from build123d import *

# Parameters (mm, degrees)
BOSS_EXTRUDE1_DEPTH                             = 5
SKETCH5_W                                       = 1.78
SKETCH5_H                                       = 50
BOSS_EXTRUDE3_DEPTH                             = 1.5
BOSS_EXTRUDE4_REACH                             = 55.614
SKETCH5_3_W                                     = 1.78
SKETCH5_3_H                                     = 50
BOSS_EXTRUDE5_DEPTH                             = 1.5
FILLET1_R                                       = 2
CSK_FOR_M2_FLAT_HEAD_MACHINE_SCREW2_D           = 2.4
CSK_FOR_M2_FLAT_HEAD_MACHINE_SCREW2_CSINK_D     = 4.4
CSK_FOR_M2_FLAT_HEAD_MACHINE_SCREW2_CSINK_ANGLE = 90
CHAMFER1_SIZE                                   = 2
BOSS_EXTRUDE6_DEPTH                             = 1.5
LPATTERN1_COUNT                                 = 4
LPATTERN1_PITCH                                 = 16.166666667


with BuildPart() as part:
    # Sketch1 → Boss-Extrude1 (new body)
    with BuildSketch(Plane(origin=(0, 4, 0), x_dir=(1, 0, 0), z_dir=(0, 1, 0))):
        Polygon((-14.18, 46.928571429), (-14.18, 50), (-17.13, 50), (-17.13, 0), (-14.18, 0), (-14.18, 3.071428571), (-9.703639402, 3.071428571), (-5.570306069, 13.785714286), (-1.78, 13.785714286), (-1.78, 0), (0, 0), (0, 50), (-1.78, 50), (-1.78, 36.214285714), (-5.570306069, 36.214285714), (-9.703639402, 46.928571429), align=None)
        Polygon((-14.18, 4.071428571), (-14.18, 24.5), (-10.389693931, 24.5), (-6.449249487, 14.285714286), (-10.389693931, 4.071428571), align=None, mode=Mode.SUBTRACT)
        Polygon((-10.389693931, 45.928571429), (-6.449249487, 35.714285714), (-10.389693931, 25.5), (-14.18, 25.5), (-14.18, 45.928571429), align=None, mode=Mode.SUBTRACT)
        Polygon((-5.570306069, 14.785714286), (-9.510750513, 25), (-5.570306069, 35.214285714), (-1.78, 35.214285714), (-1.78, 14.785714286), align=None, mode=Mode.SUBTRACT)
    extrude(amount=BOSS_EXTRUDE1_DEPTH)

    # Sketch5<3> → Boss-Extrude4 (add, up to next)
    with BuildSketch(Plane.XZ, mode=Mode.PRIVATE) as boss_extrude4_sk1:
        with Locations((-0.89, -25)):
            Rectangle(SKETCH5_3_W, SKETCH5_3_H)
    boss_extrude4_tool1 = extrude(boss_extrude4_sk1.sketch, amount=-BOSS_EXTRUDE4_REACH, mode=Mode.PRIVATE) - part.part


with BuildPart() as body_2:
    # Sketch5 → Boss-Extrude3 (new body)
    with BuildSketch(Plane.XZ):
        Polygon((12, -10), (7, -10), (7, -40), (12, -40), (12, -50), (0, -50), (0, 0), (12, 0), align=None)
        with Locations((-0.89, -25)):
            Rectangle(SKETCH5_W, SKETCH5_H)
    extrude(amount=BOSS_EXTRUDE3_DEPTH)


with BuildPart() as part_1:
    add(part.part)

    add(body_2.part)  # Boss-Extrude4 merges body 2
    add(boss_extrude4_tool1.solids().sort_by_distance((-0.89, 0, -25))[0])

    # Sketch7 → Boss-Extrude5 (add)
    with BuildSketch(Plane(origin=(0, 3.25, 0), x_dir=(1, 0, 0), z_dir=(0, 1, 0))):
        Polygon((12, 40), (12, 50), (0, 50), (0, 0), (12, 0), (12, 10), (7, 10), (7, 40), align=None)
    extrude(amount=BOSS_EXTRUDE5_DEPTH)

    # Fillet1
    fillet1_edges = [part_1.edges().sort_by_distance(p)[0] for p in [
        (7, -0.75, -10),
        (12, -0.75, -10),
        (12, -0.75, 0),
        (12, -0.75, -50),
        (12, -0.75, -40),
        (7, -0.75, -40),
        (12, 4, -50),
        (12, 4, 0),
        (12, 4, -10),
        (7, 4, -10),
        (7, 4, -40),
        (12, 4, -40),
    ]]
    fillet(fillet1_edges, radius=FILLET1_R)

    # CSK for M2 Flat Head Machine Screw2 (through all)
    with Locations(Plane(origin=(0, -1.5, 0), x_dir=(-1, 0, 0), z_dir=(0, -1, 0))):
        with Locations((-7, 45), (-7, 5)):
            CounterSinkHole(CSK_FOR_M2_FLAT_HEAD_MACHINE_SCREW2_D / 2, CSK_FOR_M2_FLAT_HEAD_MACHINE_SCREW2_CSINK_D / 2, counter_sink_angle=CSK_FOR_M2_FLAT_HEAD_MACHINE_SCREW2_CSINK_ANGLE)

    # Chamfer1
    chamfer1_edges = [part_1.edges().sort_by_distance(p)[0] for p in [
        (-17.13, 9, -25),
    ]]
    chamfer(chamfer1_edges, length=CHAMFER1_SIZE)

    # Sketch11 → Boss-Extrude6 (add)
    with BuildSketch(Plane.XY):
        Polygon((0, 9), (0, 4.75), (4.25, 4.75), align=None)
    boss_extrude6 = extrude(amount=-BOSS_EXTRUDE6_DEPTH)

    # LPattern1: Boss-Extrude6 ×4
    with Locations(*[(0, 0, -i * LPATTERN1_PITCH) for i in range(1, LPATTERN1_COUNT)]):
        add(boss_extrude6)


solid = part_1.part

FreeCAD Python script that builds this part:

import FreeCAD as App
import Part
import Sketcher
from FreeCAD import Vector
Q = App.Units.Quantity


def edges_at(feature, points):
    """Names of the edges that pass closest to the given points."""
    edges = feature.Shape.Edges
    near = lambda p: min(range(len(edges)), key=lambda i: edges[i].distToShape(Part.Vertex(*p))[0])
    return sorted({f"Edge{near(p) + 1}" for p in points})


def add_polygon(sketch, points):
    """Adds a closed chain of lines whose ends are joined by coincident constraints."""
    first, n = sketch.GeometryCount, len(points)
    for a, b in zip(points, points[1:] + points[:1]):
        sketch.addGeometry(Part.LineSegment(App.Vector(*a, 0), App.Vector(*b, 0)), False)
    for i in range(n):
        sketch.addConstraint(Sketcher.Constraint("Coincident", first + i, 2, first + (i + 1) % n, 1))

doc = App.newDocument("Part")
body = doc.addObject("PartDesign::Body", "Body")

# Sketch on XZ plane
sketch1 = doc.addObject("Sketcher::SketchObject", "Sketch")
body.addObject(sketch1)
sketch1.AttachmentSupport = (doc.XZ_Plane, [""])
sketch1.MapMode = "FlatFace"
sketch1.AttachmentOffset = App.Placement(Vector(0, 0, -4), App.Rotation())
add_polygon(sketch1, [(-14.2, -46.9), (-14.2, -50), (-17.1, -50), (-17.1, 0), (-14.2, 0), (-14.2, -3.1), (-9.7, -3.1), (-5.6, -13.8), (-1.8, -13.8), (-1.8, 0), (0, 0), (0, -50), (-1.8, -50), (-1.8, -36.2), (-5.6, -36.2), (-9.7, -46.9)])  # lines 0-15
add_polygon(sketch1, [(-10.4, -4.1), (-14.2, -4.1), (-14.2, -24.5), (-10.4, -24.5), (-6.4, -14.3)])  # lines 16-20
add_polygon(sketch1, [(-14.2, -45.9), (-10.4, -45.9), (-6.4, -35.7), (-10.4, -25.5), (-14.2, -25.5)])  # lines 21-25
add_polygon(sketch1, [(-1.8, -14.8), (-5.6, -14.8), (-9.5, -25), (-5.6, -35.2), (-1.8, -35.2)])  # lines 26-30
sketch1.addConstraint(Sketcher.Constraint("Vertical", 0))
sketch1.addConstraint(Sketcher.Constraint("Horizontal", 1))
sketch1.addConstraint(Sketcher.Constraint("Vertical", 2))
sketch1.addConstraint(Sketcher.Constraint("Horizontal", 3))
sketch1.addConstraint(Sketcher.Constraint("Vertical", 4))
sketch1.addConstraint(Sketcher.Constraint("Horizontal", 5))
sketch1.addConstraint(Sketcher.Constraint("Horizontal", 7))
sketch1.addConstraint(Sketcher.Constraint("Vertical", 8))
sketch1.addConstraint(Sketcher.Constraint("Horizontal", 9))
sketch1.addConstraint(Sketcher.Constraint("Vertical", 10))
sketch1.addConstraint(Sketcher.Constraint("Horizontal", 11))
sketch1.addConstraint(Sketcher.Constraint("Vertical", 12))
sketch1.addConstraint(Sketcher.Constraint("Horizontal", 13))
sketch1.addConstraint(Sketcher.Constraint("Horizontal", 15))
sketch1.addConstraint(Sketcher.Constraint("Horizontal", 16))
sketch1.addConstraint(Sketcher.Constraint("Vertical", 17))
sketch1.addConstraint(Sketcher.Constraint("Horizontal", 18))
sketch1.addConstraint(Sketcher.Constraint("Horizontal", 21))
sketch1.addConstraint(Sketcher.Constraint("Horizontal", 24))
sketch1.addConstraint(Sketcher.Constraint("Vertical", 25))
sketch1.addConstraint(Sketcher.Constraint("Horizontal", 26))
sketch1.addConstraint(Sketcher.Constraint("Horizontal", 29))
sketch1.addConstraint(Sketcher.Constraint("Vertical", 30))
sketch1.addConstraint(Sketcher.Constraint("Coincident", 9, 2, -1, 1))
sketch1.addConstraint(Sketcher.Constraint("PointOnObject", 2, 2, -1))
sketch1.addConstraint(Sketcher.Constraint("Parallel", 14, 19))
sketch1.addConstraint(Sketcher.Constraint("Parallel", 6, 20))
sketch1.addConstraint(Sketcher.Constraint("Parallel", 19, 22))
sketch1.addConstraint(Sketcher.Constraint("Parallel", 20, 23))
sketch1.addConstraint(Sketcher.Constraint("Parallel", 22, 27))
sketch1.addConstraint(Sketcher.Constraint("Parallel", 23, 28))
sketch1.addConstraint(Sketcher.Constraint("Horizontal", 1, 2, 10, 2))
sketch1.addConstraint(Sketcher.Constraint("Vertical", 0, 2, 3, 2))
sketch1.addConstraint(Sketcher.Constraint("Vertical", 8, 2, 11, 2))
sketch1.addConstraint(Sketcher.Constraint("Vertical", 6, 2, 13, 2))
sketch1.addConstraint(Sketcher.Constraint("Vertical", 5, 2, 14, 2))
sketch1.addConstraint(Sketcher.Constraint("Vertical", 15, 2, 16, 2))
sketch1.addConstraint(Sketcher.Constraint("Vertical", 18, 2, 20, 2))
sketch1.addConstraint(Sketcher.Constraint("Vertical", 20, 2, 21, 2))
sketch1.addConstraint(Sketcher.Constraint("Vertical", 19, 2, 22, 2))
sketch1.addConstraint(Sketcher.Constraint("Vertical", 21, 2, 23, 2))
sketch1.addConstraint(Sketcher.Constraint("Vertical", 17, 2, 24, 2))
sketch1.addConstraint(Sketcher.Constraint("Vertical", 13, 2, 26, 2))
sketch1.addConstraint(Sketcher.Constraint("Vertical", 26, 2, 28, 2))
sketch1.addConstraint(Sketcher.Constraint("Vertical", 12, 2, 29, 2))
sketch1.addConstraint(Sketcher.Constraint("Equal", 13, 16))
sketch1.addConstraint(Sketcher.Constraint("Equal", 0, 4))
sketch1.addConstraint(Sketcher.Constraint("Equal", 8, 12))
sketch1.addConstraint(Sketcher.Constraint("Equal", 25, 30))
sketch1.addConstraint(Sketcher.Constraint("DistanceY", 2, 1, 2, 2, Q("50 mm")))
sketch1.addConstraint(Sketcher.Constraint("DistanceY", 27, 2, -1, 1, Q("25 mm")))
sketch1.addConstraint(Sketcher.Constraint("DistanceY", 16, 2, 4, 2, Q("1 mm")))
sketch1.addConstraint(Sketcher.Constraint("DistanceY", 14, 2, 21, 2, Q("1 mm")))
sketch1.addConstraint(Sketcher.Constraint("DistanceY", 23, 2, 18, 2, Q("1 mm")))
sketch1.addConstraint(Sketcher.Constraint("DistanceY", 26, 2, 6, 2, Q("1 mm")))
sketch1.addConstraint(Sketcher.Constraint("DistanceX", 1, 2, 1, 1, Q("2.95 mm")))
sketch1.addConstraint(Sketcher.Constraint("DistanceX", 9, 1, 9, 2, Q("1.78 mm")))
sketch1.addConstraint(Sketcher.Constraint("DistanceX", 4, 2, 7, 2, Q("12.4 mm")))
sketch1.addConstraint(Sketcher.Constraint("Distance", 19, Q("10.948001 mm")))
sketch1.addConstraint(Sketcher.Constraint("DistanceX", 5, 1, 5, 2, Q("4.476361 mm")))
sketch1.addConstraint(Sketcher.Constraint("DistanceY", 0, 2, 0, 1, Q("3.071429 mm")))
pad1 = doc.addObject("PartDesign::Pad", "Pad")
body.addObject(pad1)
pad1.Profile = sketch1
pad1.Length = 5
pad1.Reversed = True
body2 = doc.addObject("PartDesign::Body", "Body001")

# Sketch on XZ plane
sketch2 = doc.addObject("Sketcher::SketchObject", "Sketch001")
body2.addObject(sketch2)
sketch2.AttachmentSupport = (doc.getObject("XZ_Plane001"), [""])
sketch2.MapMode = "FlatFace"
add_polygon(sketch2, [(7, -10), (12, -10), (12, 0), (-2, 0), (-2, -50), (12, -50), (12, -40), (7, -40)])  # lines 0-7
sketch2.addConstraint(Sketcher.Constraint("Horizontal", 0))
sketch2.addConstraint(Sketcher.Constraint("Vertical", 1))
sketch2.addConstraint(Sketcher.Constraint("Horizontal", 2))
sketch2.addConstraint(Sketcher.Constraint("Vertical", 3))
sketch2.addConstraint(Sketcher.Constraint("Horizontal", 4))
sketch2.addConstraint(Sketcher.Constraint("Vertical", 5))
sketch2.addConstraint(Sketcher.Constraint("Horizontal", 6))
sketch2.addConstraint(Sketcher.Constraint("Vertical", 7))
sketch2.addConstraint(Sketcher.Constraint("PointOnObject", 1, 2, -1))
sketch2.addConstraint(Sketcher.Constraint("Vertical", 1, 2, 4, 2))
sketch2.addConstraint(Sketcher.Constraint("Equal", 1, 5))
sketch2.addConstraint(Sketcher.Constraint("DistanceX", 0, 1, 0, 2, Q("5 mm")))
sketch2.addConstraint(Sketcher.Constraint("DistanceY", 1, 1, 1, 2, Q("10 mm")))
sketch2.addConstraint(Sketcher.Constraint("DistanceY", 3, 2, 3, 1, Q("50 mm")))
sketch2.addConstraint(Sketcher.Constraint("DistanceX", -1, 1, 0, 2, Q("12 mm")))
sketch2.addConstraint(Sketcher.Constraint("DistanceX", 2, 2, 2, 1, Q("13.78 mm")))
pad2 = doc.addObject("PartDesign::Pad", "Pad001")
body2.addObject(pad2)
pad2.Profile = sketch2
pad2.Length = 1.5
body.AllowCompound = True
doc.recompute()

boolean = doc.addObject("PartDesign::Boolean", "Boolean")
body.addObject(boolean)
boolean.Type = "Fuse"
boolean.addObjects([body2])

# Sketch on XZ plane
sketch3 = doc.addObject("Sketcher::SketchObject", "Sketch002")
body.addObject(sketch3)
sketch3.AttachmentSupport = (doc.XZ_Plane, [""])
sketch3.MapMode = "FlatFace"
add_polygon(sketch3, [(-1.8, 0), (-1.8, -50), (0, -50), (0, 0)])  # lines 0-3
sketch3.addConstraint(Sketcher.Constraint("Vertical", 0))
sketch3.addConstraint(Sketcher.Constraint("Horizontal", 1))
sketch3.addConstraint(Sketcher.Constraint("Vertical", 2))
sketch3.addConstraint(Sketcher.Constraint("Horizontal", 3))
sketch3.addConstraint(Sketcher.Constraint("Coincident", 2, 2, -1, 1))
sketch3.addConstraint(Sketcher.Constraint("DistanceY", 0, 2, 0, 1, Q("50 mm")))
sketch3.addConstraint(Sketcher.Constraint("DistanceX", 1, 1, 1, 2, Q("1.78 mm")))
pad3 = doc.addObject("PartDesign::Pad", "Pad002")
body.addObject(pad3)
pad3.Profile = sketch3
pad3.Type = "UpToFirst"
pad3.Reversed = True

# Sketch on XZ plane
sketch4 = doc.addObject("Sketcher::SketchObject", "Sketch003")
body.addObject(sketch4)
sketch4.AttachmentSupport = (doc.XZ_Plane, [""])
sketch4.MapMode = "FlatFace"
sketch4.AttachmentOffset = App.Placement(Vector(0, 0, -3.25), App.Rotation())
add_polygon(sketch4, [(12, -40), (12, -50), (0, -50), (0, 0), (12, 0), (12, -10), (7, -10), (7, -40)])  # lines 0-7
sketch4.addConstraint(Sketcher.Constraint("Vertical", 0))
sketch4.addConstraint(Sketcher.Constraint("Horizontal", 1))
sketch4.addConstraint(Sketcher.Constraint("Vertical", 2))
sketch4.addConstraint(Sketcher.Constraint("Horizontal", 3))
sketch4.addConstraint(Sketcher.Constraint("Vertical", 4))
sketch4.addConstraint(Sketcher.Constraint("Horizontal", 5))
sketch4.addConstraint(Sketcher.Constraint("Vertical", 6))
sketch4.addConstraint(Sketcher.Constraint("Horizontal", 7))
sketch4.addConstraint(Sketcher.Constraint("Coincident", 2, 2, -1, 1))
sketch4.addConstraint(Sketcher.Constraint("Vertical", 0, 2, 3, 2))
sketch4.addConstraint(Sketcher.Constraint("Equal", 0, 4))
sketch4.addConstraint(Sketcher.Constraint("DistanceX", 1, 2, 1, 1, Q("12 mm")))
sketch4.addConstraint(Sketcher.Constraint("DistanceX", 5, 2, 5, 1, Q("5 mm")))
sketch4.addConstraint(Sketcher.Constraint("DistanceY", 0, 2, 0, 1, Q("10 mm")))
sketch4.addConstraint(Sketcher.Constraint("DistanceY", 2, 1, 2, 2, Q("50 mm")))
pad4 = doc.addObject("PartDesign::Pad", "Pad003")
body.addObject(pad4)
pad4.Profile = sketch4
pad4.Length = 1.5
pad4.Reversed = True
doc.recompute()

fillet = doc.addObject("PartDesign::Fillet", "Fillet")
body.addObject(fillet)
fillet.Base = (pad4, edges_at(pad4, [
    (7, -0.75, -10),
    (12, -0.75, -10),
    (12, -0.75, 0),
    (12, -0.75, -50),
    (12, -0.75, -40),
    (7, -0.75, -40),
    (12, 4, -50),
    (12, 4, 0),
    (12, 4, -10),
    (7, 4, -10),
    (7, 4, -40),
    (12, 4, -40),
]))
fillet.Radius = 2

# Sketch on XZ plane
sketch5 = doc.addObject("Sketcher::SketchObject", "Sketch004")
body.addObject(sketch5)
sketch5.AttachmentSupport = (doc.XZ_Plane, [""])
sketch5.MapMode = "FlatFace"
sketch5.AttachmentOffset = App.Placement(Vector(0, 0, 1.5), App.Rotation())
sketch5.addGeometry(Part.Circle(Vector(7, -45, 0), Vector(0, 0, 1), 1.2), False)
sketch5.addGeometry(Part.Circle(Vector(7, -5, 0), Vector(0, 0, 1), 1.2), False)
sketch5.addConstraint(Sketcher.Constraint("Equal", 0, 1))
sketch5.addConstraint(Sketcher.Constraint("Vertical", 0, 3, 1, 3))
sketch5.addConstraint(Sketcher.Constraint("Diameter", 0, Q("2.4 mm")))
sketch5.addConstraint(Sketcher.Constraint("DistanceX", -1, 1, 0, 3, Q("7 mm")))
sketch5.addConstraint(Sketcher.Constraint("DistanceY", 0, 3, -1, 1, Q("45 mm")))
sketch5.addConstraint(Sketcher.Constraint("DistanceY", 1, 3, -1, 1, Q("5 mm")))
doc.recompute()
hole = doc.addObject("PartDesign::Hole", "Hole")
body.addObject(hole)
hole.Profile = sketch5
hole.ThreadType = "None"
hole.Diameter = 2.4
hole.DepthType = "ThroughAll"
hole.HoleCutType = "Countersink"
hole.HoleCutDiameter = 4.4
hole.HoleCutCountersinkAngle = 90
doc.recompute()

chamfer = doc.addObject("PartDesign::Chamfer", "Chamfer")
body.addObject(chamfer)
chamfer.Base = (hole, edges_at(hole, [(-17.13, 9, -25)]))
chamfer.Size = 2

# Sketch on XY plane
sketch6 = doc.addObject("Sketcher::SketchObject", "Sketch005")
body.addObject(sketch6)
sketch6.AttachmentSupport = (doc.XY_Plane, [""])
sketch6.MapMode = "FlatFace"
add_polygon(sketch6, [(0, 9), (0, 4.8), (4.2, 4.8)])  # lines 0-2
sketch6.addConstraint(Sketcher.Constraint("Vertical", 0))
sketch6.addConstraint(Sketcher.Constraint("Horizontal", 1))
sketch6.addConstraint(Sketcher.Constraint("PointOnObject", 0, 2, -2))
sketch6.addConstraint(Sketcher.Constraint("Equal", 1, 0))
sketch6.addConstraint(Sketcher.Constraint("DistanceY", -1, 1, 2, 2, Q("9 mm")))
sketch6.addConstraint(Sketcher.Constraint("DistanceX", 1, 1, 1, 2, Q("4.25 mm")))
pad5 = doc.addObject("PartDesign::Pad", "Pad004")
body.addObject(pad5)
pad5.Profile = sketch6
pad5.Length = 1.5
pad5.Reversed = True
doc.recompute()

linearpattern = doc.addObject("PartDesign::LinearPattern", "LinearPattern")
body.addObject(linearpattern)
linearpattern.Originals = [pad5]
linearpattern.Direction = (doc.Z_Axis, [""])
linearpattern.Mode = "offset"
linearpattern.Offset = 16.166667
linearpattern.Occurrences = 4
linearpattern.Reversed = True
body.Tip = linearpattern

doc.recompute()
